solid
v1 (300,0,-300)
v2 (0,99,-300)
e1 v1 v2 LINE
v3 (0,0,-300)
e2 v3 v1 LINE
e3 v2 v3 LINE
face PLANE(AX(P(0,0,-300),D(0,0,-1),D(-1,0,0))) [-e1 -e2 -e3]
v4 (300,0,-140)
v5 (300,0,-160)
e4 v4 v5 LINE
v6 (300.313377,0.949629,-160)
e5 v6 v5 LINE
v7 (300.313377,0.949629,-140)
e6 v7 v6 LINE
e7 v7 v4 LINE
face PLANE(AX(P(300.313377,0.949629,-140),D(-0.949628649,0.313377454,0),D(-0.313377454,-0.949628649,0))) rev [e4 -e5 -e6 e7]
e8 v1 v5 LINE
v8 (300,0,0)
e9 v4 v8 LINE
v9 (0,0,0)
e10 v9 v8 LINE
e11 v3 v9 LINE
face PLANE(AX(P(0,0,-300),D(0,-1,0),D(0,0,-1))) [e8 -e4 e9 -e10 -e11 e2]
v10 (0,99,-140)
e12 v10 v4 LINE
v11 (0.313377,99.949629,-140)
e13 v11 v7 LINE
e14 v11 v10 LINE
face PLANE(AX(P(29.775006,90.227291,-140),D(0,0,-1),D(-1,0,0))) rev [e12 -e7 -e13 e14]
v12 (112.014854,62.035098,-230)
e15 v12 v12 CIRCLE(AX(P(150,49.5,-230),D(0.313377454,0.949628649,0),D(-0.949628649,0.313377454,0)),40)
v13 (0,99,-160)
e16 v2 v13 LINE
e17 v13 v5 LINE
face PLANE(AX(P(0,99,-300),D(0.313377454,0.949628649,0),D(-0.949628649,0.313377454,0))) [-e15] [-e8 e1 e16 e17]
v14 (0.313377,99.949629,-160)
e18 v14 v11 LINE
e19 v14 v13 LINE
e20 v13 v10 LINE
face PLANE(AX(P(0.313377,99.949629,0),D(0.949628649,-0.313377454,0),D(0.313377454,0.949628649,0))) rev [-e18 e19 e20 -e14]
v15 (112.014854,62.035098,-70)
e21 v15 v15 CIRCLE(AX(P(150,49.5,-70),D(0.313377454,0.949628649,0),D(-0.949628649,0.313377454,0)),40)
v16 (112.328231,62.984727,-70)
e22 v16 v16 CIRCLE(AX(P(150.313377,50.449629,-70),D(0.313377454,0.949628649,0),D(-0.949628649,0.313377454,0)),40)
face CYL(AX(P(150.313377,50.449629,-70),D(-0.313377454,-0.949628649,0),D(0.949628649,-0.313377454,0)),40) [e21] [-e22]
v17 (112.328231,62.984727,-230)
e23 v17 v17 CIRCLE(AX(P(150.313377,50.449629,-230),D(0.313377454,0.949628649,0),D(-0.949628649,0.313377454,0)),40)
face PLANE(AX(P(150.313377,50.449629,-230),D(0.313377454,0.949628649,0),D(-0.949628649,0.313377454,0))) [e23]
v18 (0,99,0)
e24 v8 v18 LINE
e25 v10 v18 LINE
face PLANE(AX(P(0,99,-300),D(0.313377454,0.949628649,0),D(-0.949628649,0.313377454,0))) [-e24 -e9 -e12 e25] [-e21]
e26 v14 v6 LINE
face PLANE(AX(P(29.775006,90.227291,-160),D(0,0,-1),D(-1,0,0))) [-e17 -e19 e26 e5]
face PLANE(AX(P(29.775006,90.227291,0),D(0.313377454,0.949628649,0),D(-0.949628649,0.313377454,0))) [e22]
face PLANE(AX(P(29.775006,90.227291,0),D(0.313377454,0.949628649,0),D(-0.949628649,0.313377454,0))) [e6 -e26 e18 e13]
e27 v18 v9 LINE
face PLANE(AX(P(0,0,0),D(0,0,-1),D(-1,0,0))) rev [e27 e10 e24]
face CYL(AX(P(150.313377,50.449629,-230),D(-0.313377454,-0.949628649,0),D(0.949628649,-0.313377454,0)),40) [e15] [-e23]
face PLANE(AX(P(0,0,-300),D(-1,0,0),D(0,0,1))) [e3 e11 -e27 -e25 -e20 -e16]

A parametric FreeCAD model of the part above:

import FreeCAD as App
import Part
import Sketcher

doc = App.newDocument("Part")
body = doc.addObject("PartDesign::Body", "Body")

# Sketch on XY plane
sketch1 = doc.addObject("Sketcher::SketchObject", "Sketch")
body.addObject(sketch1)
sketch1.AttachmentSupport = (doc.XY_Plane, [""])
sketch1.MapMode = "FlatFace"
sketch1.addGeometry(Part.LineSegment(App.Vector(0, 0, 0), App.Vector(300, 0, 0)), False)
sketch1.addGeometry(Part.LineSegment(App.Vector(300, 0, 0), App.Vector(0, 99, 0)), False)
sketch1.addGeometry(Part.LineSegment(App.Vector(0, 99, 0), App.Vector(0, 0, 0)), False)
sketch1.addConstraint(Sketcher.Constraint("Coincident", 0, 2, 1, 1))
sketch1.addConstraint(Sketcher.Constraint("Coincident", 1, 2, 2, 1))
sketch1.addConstraint(Sketcher.Constraint("Coincident", 2, 2, 0, 1))
sketch1.addConstraint(Sketcher.Constraint("Horizontal", 0))
sketch1.addConstraint(Sketcher.Constraint("Vertical", 2))
sketch1.addConstraint(Sketcher.Constraint("Coincident", 2, 2, -1, 1))
sketch1.addConstraint(Sketcher.Constraint("DistanceX", 0, 1, 0, 2, 300.0))
sketch1.addConstraint(Sketcher.Constraint("DistanceY", 2, 2, 2, 1, 99.0))
pad1 = doc.addObject("PartDesign::Pad", "Pad")
body.addObject(pad1)
pad1.Profile = sketch1
pad1.Length = 300
pad1.Reversed = True

# Sketch on an angled plane
sketch2 = doc.addObject("Sketcher::SketchObject", "Sketch001")
body.addObject(sketch2)
sketch2.Placement = App.Placement(App.Vector(29.461629, 89.277663, 0), App.Rotation(App.Vector(0.949628649, -0.313377454, 0), App.Vector(0, 0, -1), App.Vector(0.313377454, 0.949628649, 0), "ZXY"))
sketch2.addGeometry(Part.LineSegment(App.Vector(-31, 160, 0), App.Vector(-31, 140, 0)), False)
sketch2.addGeometry(Part.LineSegment(App.Vector(-31, 140, 0), App.Vector(285, 140, 0)), False)
sketch2.addGeometry(Part.LineSegment(App.Vector(285, 140, 0), App.Vector(285, 160, 0)), False)
sketch2.addGeometry(Part.LineSegment(App.Vector(285, 160, 0), App.Vector(-31, 160, 0)), False)
sketch2.addConstraint(Sketcher.Constraint("Coincident", 0, 2, 1, 1))
sketch2.addConstraint(Sketcher.Constraint("Coincident", 1, 2, 2, 1))
sketch2.addConstraint(Sketcher.Constraint("Coincident", 2, 2, 3, 1))
sketch2.addConstraint(Sketcher.Constraint("Coincident", 3, 2, 0, 1))
sketch2.addConstraint(Sketcher.Constraint("Vertical", 0))
sketch2.addConstraint(Sketcher.Constraint("Horizontal", 1))
sketch2.addConstraint(Sketcher.Constraint("Vertical", 2))
sketch2.addConstraint(Sketcher.Constraint("Horizontal", 3))
sketch2.addConstraint(Sketcher.Constraint("DistanceY", 0, 2, 0, 1, 20.0))
sketch2.addConstraint(Sketcher.Constraint("DistanceY", -1, 1, 0, 2, 140.0))
sketch2.addConstraint(Sketcher.Constraint("DistanceX", 1, 1, 1, 2, 315.912963))
sketch2.addConstraint(Sketcher.Constraint("DistanceX", 0, 2, -1, 1, 31.024368))
pad2 = doc.addObject("PartDesign::Pad", "Pad001")
body.addObject(pad2)
pad2.Profile = sketch2
pad2.Length = 1

# Sketch on an angled plane
sketch3 = doc.addObject("Sketcher::SketchObject", "Sketch002")
body.addObject(sketch3)
sketch3.Placement = App.Placement(App.Vector(29.461629, 89.277663, 0), App.Rotation(App.Vector(0.949628649, -0.313377454, 0), App.Vector(0, 0, -1), App.Vector(0.313377454, 0.949628649, 0), "ZXY"))
sketch3.addGeometry(Part.Circle(App.Vector(127, 70, 0), App.Vector(0, 0, 1), 40), False)
sketch3.addConstraint(Sketcher.Constraint("Diameter", 0, 80.0))
sketch3.addConstraint(Sketcher.Constraint("DistanceY", -1, 1, 0, 3, 70.0))
sketch3.addConstraint(Sketcher.Constraint("DistanceX", -1, 1, 0, 3, 126.932113))
pad3 = doc.addObject("PartDesign::Pad", "Pad002")
body.addObject(pad3)
pad3.Profile = sketch3
pad3.Length = 1

# Sketch on an angled plane
sketch4 = doc.addObject("Sketcher::SketchObject", "Sketch003")
body.addObject(sketch4)
sketch4.Placement = App.Placement(App.Vector(29.461629, 89.277663, 0), App.Rotation(App.Vector(0.949628649, -0.313377454, 0), App.Vector(0, 0, -1), App.Vector(0.313377454, 0.949628649, 0), "ZXY"))
sketch4.addGeometry(Part.Circle(App.Vector(127, 230, 0), App.Vector(0, 0, 1), 40), False)
sketch4.addConstraint(Sketcher.Constraint("Diameter", 0, 80.0))
sketch4.addConstraint(Sketcher.Constraint("DistanceY", -1, 1, 0, 3, 230.0))
sketch4.addConstraint(Sketcher.Constraint("DistanceX", -1, 1, 0, 3, 126.932113))
pad4 = doc.addObject("PartDesign::Pad", "Pad003")
body.addObject(pad4)
pad4.Profile = sketch4
pad4.Length = 1

doc.recompute()
